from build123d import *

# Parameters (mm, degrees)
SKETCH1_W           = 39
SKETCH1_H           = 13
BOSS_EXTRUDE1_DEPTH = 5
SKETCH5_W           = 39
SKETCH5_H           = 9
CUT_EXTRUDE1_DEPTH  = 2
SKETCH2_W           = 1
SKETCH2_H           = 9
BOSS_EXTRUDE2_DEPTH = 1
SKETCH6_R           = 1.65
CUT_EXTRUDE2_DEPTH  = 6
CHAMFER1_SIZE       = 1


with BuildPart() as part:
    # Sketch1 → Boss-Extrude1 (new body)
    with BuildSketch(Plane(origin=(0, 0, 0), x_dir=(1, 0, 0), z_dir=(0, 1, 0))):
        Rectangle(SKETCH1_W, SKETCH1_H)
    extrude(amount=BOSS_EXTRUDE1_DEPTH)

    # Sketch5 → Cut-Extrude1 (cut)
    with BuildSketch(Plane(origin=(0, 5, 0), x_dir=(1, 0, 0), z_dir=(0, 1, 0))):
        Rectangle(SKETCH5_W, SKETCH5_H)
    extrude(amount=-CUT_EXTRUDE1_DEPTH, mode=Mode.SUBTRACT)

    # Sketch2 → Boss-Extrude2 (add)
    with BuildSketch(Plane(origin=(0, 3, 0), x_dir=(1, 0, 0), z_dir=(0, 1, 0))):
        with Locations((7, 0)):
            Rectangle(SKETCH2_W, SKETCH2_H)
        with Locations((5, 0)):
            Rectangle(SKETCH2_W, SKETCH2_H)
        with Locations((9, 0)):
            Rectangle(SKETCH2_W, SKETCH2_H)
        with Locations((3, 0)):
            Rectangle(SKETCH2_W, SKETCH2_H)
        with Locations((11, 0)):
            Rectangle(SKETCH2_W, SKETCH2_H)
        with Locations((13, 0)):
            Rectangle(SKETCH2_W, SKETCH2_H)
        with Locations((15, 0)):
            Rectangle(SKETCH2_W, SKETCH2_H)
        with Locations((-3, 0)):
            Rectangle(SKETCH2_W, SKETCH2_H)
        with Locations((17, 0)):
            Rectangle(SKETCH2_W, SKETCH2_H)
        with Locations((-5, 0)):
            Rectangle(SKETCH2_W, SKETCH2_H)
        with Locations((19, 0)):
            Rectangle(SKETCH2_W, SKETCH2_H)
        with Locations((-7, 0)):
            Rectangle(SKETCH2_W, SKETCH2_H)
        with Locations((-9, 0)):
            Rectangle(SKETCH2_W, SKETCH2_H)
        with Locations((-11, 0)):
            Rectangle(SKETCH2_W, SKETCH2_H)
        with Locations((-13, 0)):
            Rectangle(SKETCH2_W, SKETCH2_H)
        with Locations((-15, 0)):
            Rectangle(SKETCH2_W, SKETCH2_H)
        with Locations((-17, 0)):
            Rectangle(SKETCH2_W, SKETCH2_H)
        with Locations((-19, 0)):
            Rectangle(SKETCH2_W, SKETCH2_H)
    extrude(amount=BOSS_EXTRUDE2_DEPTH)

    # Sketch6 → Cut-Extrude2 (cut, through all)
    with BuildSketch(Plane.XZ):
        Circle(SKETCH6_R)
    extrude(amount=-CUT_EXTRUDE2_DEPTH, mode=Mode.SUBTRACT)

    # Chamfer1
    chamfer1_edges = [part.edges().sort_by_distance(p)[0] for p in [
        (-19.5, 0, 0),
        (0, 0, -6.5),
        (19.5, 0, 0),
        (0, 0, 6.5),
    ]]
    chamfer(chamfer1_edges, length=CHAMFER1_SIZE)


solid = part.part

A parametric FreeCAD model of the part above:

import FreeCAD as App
import Part
import Sketcher
from FreeCAD import Vector
Q = App.Units.Quantity


def edges_at(feature, points):
    """Names of the edges that pass closest to the given points."""
    edges = feature.Shape.Edges
    near = lambda p: min(range(len(edges)), key=lambda i: edges[i].distToShape(Part.Vertex(*p))[0])
    return sorted({f"Edge{near(p) + 1}" for p in points})

doc = App.newDocument("Part")
params = doc.addObject("Spreadsheet::Sheet", "Params")
for row, (alias, value) in enumerate([
    ("sketch1_width", "39 mm"),
    ("sketch1_height", "13 mm"),
    ("pad1_length", "5 mm"),
    ("sketch2_width", "39 mm"),
    ("sketch2_height", "9 mm"),
    ("pocket1_length", "2 mm"),
    ("sketch3_width", "1 mm"),
    ("sketch3_height", "9 mm"),
    ("pad2_length", "1 mm"),
    ("sketch4_diameter", "3.3 mm"),
    ("chamfer_size", "1 mm"),
], start=1):
    params.set(f"A{row}", alias)
    params.set(f"B{row}", "=" + value)
    params.setAlias(f"B{row}", alias)

body = doc.addObject("PartDesign::Body", "Body")

# Sketch on XZ plane
sketch1 = doc.addObject("Sketcher::SketchObject", "Sketch")
body.addObject(sketch1)
sketch1.AttachmentSupport = (doc.XZ_Plane, [""])
sketch1.MapMode = "FlatFace"
sketch1.addGeometry(Part.LineSegment(Vector(-20, -6, 0), Vector(-20, 6, 0)), False)
sketch1.addGeometry(Part.LineSegment(Vector(-20, 6, 0), Vector(20, 6, 0)), False)
sketch1.addGeometry(Part.LineSegment(Vector(20, 6, 0), Vector(20, -6, 0)), False)
sketch1.addGeometry(Part.LineSegment(Vector(20, -6, 0), Vector(-20, -6, 0)), False)
sketch1.addConstraint(Sketcher.Constraint("Coincident", 0, 2, 1, 1))
sketch1.addConstraint(Sketcher.Constraint("Coincident", 1, 2, 2, 1))
sketch1.addConstraint(Sketcher.Constraint("Coincident", 2, 2, 3, 1))
sketch1.addConstraint(Sketcher.Constraint("Coincident", 3, 2, 0, 1))
sketch1.addConstraint(Sketcher.Constraint("Vertical", 0))
sketch1.addConstraint(Sketcher.Constraint("Horizontal", 1))
sketch1.addConstraint(Sketcher.Constraint("Vertical", 2))
sketch1.addConstraint(Sketcher.Constraint("Horizontal", 3))
sketch1.addConstraint(Sketcher.Constraint("Symmetric", 0, 2, 2, 2, -1, 1))
sketch1.addConstraint(Sketcher.Constraint("DistanceX", 1, 1, 1, 2, Q("39 mm")))
sketch1.addConstraint(Sketcher.Constraint("DistanceY", 0, 1, 0, 2, Q("13 mm")))
sketch1.setExpression("Constraints[9]", "Params.sketch1_width")
sketch1.setExpression("Constraints[10]", "Params.sketch1_height")
pad1 = doc.addObject("PartDesign::Pad", "Pad")
body.addObject(pad1)
pad1.Profile = sketch1
pad1.setExpression("Length", "Params.pad1_length")
pad1.Reversed = True

# Sketch on XZ plane
sketch2 = doc.addObject("Sketcher::SketchObject", "Sketch001")
body.addObject(sketch2)
sketch2.AttachmentSupport = (doc.XZ_Plane, [""])
sketch2.MapMode = "FlatFace"
sketch2.AttachmentOffset = App.Placement(Vector(0, 0, -5), App.Rotation())
sketch2.addGeometry(Part.LineSegment(Vector(-20, -4, 0), Vector(-20, 4, 0)), False)
sketch2.addGeometry(Part.LineSegment(Vector(-20, 4, 0), Vector(20, 4, 0)), False)
sketch2.addGeometry(Part.LineSegment(Vector(20, 4, 0), Vector(20, -4, 0)), False)
sketch2.addGeometry(Part.LineSegment(Vector(20, -4, 0), Vector(-20, -4, 0)), False)
sketch2.addConstraint(Sketcher.Constraint("Coincident", 0, 2, 1, 1))
sketch2.addConstraint(Sketcher.Constraint("Coincident", 1, 2, 2, 1))
sketch2.addConstraint(Sketcher.Constraint("Coincident", 2, 2, 3, 1))
sketch2.addConstraint(Sketcher.Constraint("Coincident", 3, 2, 0, 1))
sketch2.addConstraint(Sketcher.Constraint("Vertical", 0))
sketch2.addConstraint(Sketcher.Constraint("Horizontal", 1))
sketch2.addConstraint(Sketcher.Constraint("Vertical", 2))
sketch2.addConstraint(Sketcher.Constraint("Horizontal", 3))
sketch2.addConstraint(Sketcher.Constraint("Symmetric", 0, 2, 2, 2, -1, 1))
sketch2.addConstraint(Sketcher.Constraint("DistanceX", 1, 1, 1, 2, Q("39 mm")))
sketch2.addConstraint(Sketcher.Constraint("DistanceY", 0, 1, 0, 2, Q("9 mm")))
sketch2.setExpression("Constraints[9]", "Params.sketch2_width")
sketch2.setExpression("Constraints[10]", "Params.sketch2_height")
pocket1 = doc.addObject("PartDesign::Pocket", "Pocket")
body.addObject(pocket1)
pocket1.Profile = sketch2
pocket1.setExpression("Length", "Params.pocket1_length")
pocket1.Reversed = True

# Sketch on XZ plane
sketch3 = doc.addObject("Sketcher::SketchObject", "Sketch002")
body.addObject(sketch3)
sketch3.AttachmentSupport = (doc.XZ_Plane, [""])
sketch3.MapMode = "FlatFace"
sketch3.AttachmentOffset = App.Placement(Vector(0, 0, -3), App.Rotation())
sketch3.addGeometry(Part.LineSegment(Vector(6.5, -4.5, 0), Vector(6.5, 4.5, 0)), False)
sketch3.addGeometry(Part.LineSegment(Vector(6.5, 4.5, 0), Vector(7.5, 4.5, 0)), False)
sketch3.addGeometry(Part.LineSegment(Vector(7.5, 4.5, 0), Vector(7.5, -4.5, 0)), False)
sketch3.addGeometry(Part.LineSegment(Vector(7.5, -4.5, 0), Vector(6.5, -4.5, 0)), False)
sketch3.addGeometry(Part.LineSegment(Vector(4.5, -4.5, 0), Vector(4.5, 4.5, 0)), False)
sketch3.addGeometry(Part.LineSegment(Vector(4.5, 4.5, 0), Vector(5.5, 4.5, 0)), False)
sketch3.addGeometry(Part.LineSegment(Vector(5.5, 4.5, 0), Vector(5.5, -4.5, 0)), False)
sketch3.addGeometry(Part.LineSegment(Vector(5.5, -4.5, 0), Vector(4.5, -4.5, 0)), False)
sketch3.addGeometry(Part.LineSegment(Vector(8.5, -4.5, 0), Vector(8.5, 4.5, 0)), False)
sketch3.addGeometry(Part.LineSegment(Vector(8.5, 4.5, 0), Vector(9.5, 4.5, 0)), False)
sketch3.addGeometry(Part.LineSegment(Vector(9.5, 4.5, 0), Vector(9.5, -4.5, 0)), False)
sketch3.addGeometry(Part.LineSegment(Vector(9.5, -4.5, 0), Vector(8.5, -4.5, 0)), False)
sketch3.addGeometry(Part.LineSegment(Vector(2.5, -4.5, 0), Vector(2.5, 4.5, 0)), False)
sketch3.addGeometry(Part.LineSegment(Vector(2.5, 4.5, 0), Vector(3.5, 4.5, 0)), False)
sketch3.addGeometry(Part.LineSegment(Vector(3.5, 4.5, 0), Vector(3.5, -4.5, 0)), False)
sketch3.addGeometry(Part.LineSegment(Vector(3.5, -4.5, 0), Vector(2.5, -4.5, 0)), False)
sketch3.addGeometry(Part.LineSegment(Vector(10.5, -4.5, 0), Vector(10.5, 4.5, 0)), False)
sketch3.addGeometry(Part.LineSegment(Vector(10.5, 4.5, 0), Vector(11.5, 4.5, 0)), False)
sketch3.addGeometry(Part.LineSegment(Vector(11.5, 4.5, 0), Vector(11.5, -4.5, 0)), False)
sketch3.addGeometry(Part.LineSegment(Vector(11.5, -4.5, 0), Vector(10.5, -4.5, 0)), False)
sketch3.addGeometry(Part.LineSegment(Vector(12.5, -4.5, 0), Vector(12.5, 4.5, 0)), False)
sketch3.addGeometry(Part.LineSegment(Vector(12.5, 4.5, 0), Vector(13.5, 4.5, 0)), False)
sketch3.addGeometry(Part.LineSegment(Vector(13.5, 4.5, 0), Vector(13.5, -4.5, 0)), False)
sketch3.addGeometry(Part.LineSegment(Vector(13.5, -4.5, 0), Vector(12.5, -4.5, 0)), False)
sketch3.addGeometry(Part.LineSegment(Vector(14.5, -4.5, 0), Vector(14.5, 4.5, 0)), False)
sketch3.addGeometry(Part.LineSegment(Vector(14.5, 4.5, 0), Vector(15.5, 4.5, 0)), False)
sketch3.addGeometry(Part.LineSegment(Vector(15.5, 4.5, 0), Vector(15.5, -4.5, 0)), False)
sketch3.addGeometry(Part.LineSegment(Vector(15.5, -4.5, 0), Vector(14.5, -4.5, 0)), False)
sketch3.addGeometry(Part.LineSegment(Vector(-3.5, -4.5, 0), Vector(-3.5, 4.5, 0)), False)
sketch3.addGeometry(Part.LineSegment(Vector(-3.5, 4.5, 0), Vector(-2.5, 4.5, 0)), False)
sketch3.addGeometry(Part.LineSegment(Vector(-2.5, 4.5, 0), Vector(-2.5, -4.5, 0)), False)
sketch3.addGeometry(Part.LineSegment(Vector(-2.5, -4.5, 0), Vector(-3.5, -4.5, 0)), False)
sketch3.addGeometry(Part.LineSegment(Vector(16.5, -4.5, 0), Vector(16.5, 4.5, 0)), False)
sketch3.addGeometry(Part.LineSegment(Vector(16.5, 4.5, 0), Vector(17.5, 4.5, 0)), False)
sketch3.addGeometry(Part.LineSegment(Vector(17.5, 4.5, 0), Vector(17.5, -4.5, 0)), False)
sketch3.addGeometry(Part.LineSegment(Vector(17.5, -4.5, 0), Vector(16.5, -4.5, 0)), False)
sketch3.addGeometry(Part.LineSegment(Vector(-5.5, -4.5, 0), Vector(-5.5, 4.5, 0)), False)
sketch3.addGeometry(Part.LineSegment(Vector(-5.5, 4.5, 0), Vector(-4.5, 4.5, 0)), False)
sketch3.addGeometry(Part.LineSegment(Vector(-4.5, 4.5, 0), Vector(-4.5, -4.5, 0)), False)
sketch3.addGeometry(Part.LineSegment(Vector(-4.5, -4.5, 0), Vector(-5.5, -4.5, 0)), False)
sketch3.addGeometry(Part.LineSegment(Vector(18.5, -4.5, 0), Vector(18.5, 4.5, 0)), False)
sketch3.addGeometry(Part.LineSegment(Vector(18.5, 4.5, 0), Vector(19.5, 4.5, 0)), False)
sketch3.addGeometry(Part.LineSegment(Vector(19.5, 4.5, 0), Vector(19.5, -4.5, 0)), False)
sketch3.addGeometry(Part.LineSegment(Vector(19.5, -4.5, 0), Vector(18.5, -4.5, 0)), False)
sketch3.addGeometry(Part.LineSegment(Vector(-7.5, -4.5, 0), Vector(-7.5, 4.5, 0)), False)
sketch3.addGeometry(Part.LineSegment(Vector(-7.5, 4.5, 0), Vector(-6.5, 4.5, 0)), False)
sketch3.addGeometry(Part.LineSegment(Vector(-6.5, 4.5, 0), Vector(-6.5, -4.5, 0)), False)
sketch3.addGeometry(Part.LineSegment(Vector(-6.5, -4.5, 0), Vector(-7.5, -4.5, 0)), False)
sketch3.addGeometry(Part.LineSegment(Vector(-9.5, -4.5, 0), Vector(-9.5, 4.5, 0)), False)
sketch3.addGeometry(Part.LineSegment(Vector(-9.5, 4.5, 0), Vector(-8.5, 4.5, 0)), False)
sketch3.addGeometry(Part.LineSegment(Vector(-8.5, 4.5, 0), Vector(-8.5, -4.5, 0)), False)
sketch3.addGeometry(Part.LineSegment(Vector(-8.5, -4.5, 0), Vector(-9.5, -4.5, 0)), False)
sketch3.addGeometry(Part.LineSegment(Vector(-11.5, -4.5, 0), Vector(-11.5, 4.5, 0)), False)
sketch3.addGeometry(Part.LineSegment(Vector(-11.5, 4.5, 0), Vector(-10.5, 4.5, 0)), False)
sketch3.addGeometry(Part.LineSegment(Vector(-10.5, 4.5, 0), Vector(-10.5, -4.5, 0)), False)
sketch3.addGeometry(Part.LineSegment(Vector(-10.5, -4.5, 0), Vector(-11.5, -4.5, 0)), False)
sketch3.addGeometry(Part.LineSegment(Vector(-13.5, -4.5, 0), Vector(-13.5, 4.5, 0)), False)
sketch3.addGeometry(Part.LineSegment(Vector(-13.5, 4.5, 0), Vector(-12.5, 4.5, 0)), False)
sketch3.addGeometry(Part.LineSegment(Vector(-12.5, 4.5, 0), Vector(-12.5, -4.5, 0)), False)
sketch3.addGeometry(Part.LineSegment(Vector(-12.5, -4.5, 0), Vector(-13.5, -4.5, 0)), False)
sketch3.addGeometry(Part.LineSegment(Vector(-15.5, -4.5, 0), Vector(-15.5, 4.5, 0)), False)
sketch3.addGeometry(Part.LineSegment(Vector(-15.5, 4.5, 0), Vector(-14.5, 4.5, 0)), False)
sketch3.addGeometry(Part.LineSegment(Vector(-14.5, 4.5, 0), Vector(-14.5, -4.5, 0)), False)
sketch3.addGeometry(Part.LineSegment(Vector(-14.5, -4.5, 0), Vector(-15.5, -4.5, 0)), False)
sketch3.addGeometry(Part.LineSegment(Vector(-17.5, -4.5, 0), Vector(-17.5, 4.5, 0)), False)
sketch3.addGeometry(Part.LineSegment(Vector(-17.5, 4.5, 0), Vector(-16.5, 4.5, 0)), False)
sketch3.addGeometry(Part.LineSegment(Vector(-16.5, 4.5, 0), Vector(-16.5, -4.5, 0)), False)
sketch3.addGeometry(Part.LineSegment(Vector(-16.5, -4.5, 0), Vector(-17.5, -4.5, 0)), False)
sketch3.addGeometry(Part.LineSegment(Vector(-19.5, -4.5, 0), Vector(-19.5, 4.5, 0)), False)
sketch3.addGeometry(Part.LineSegment(Vector(-19.5, 4.5, 0), Vector(-18.5, 4.5, 0)), False)
sketch3.addGeometry(Part.LineSegment(Vector(-18.5, 4.5, 0), Vector(-18.5, -4.5, 0)), False)
sketch3.addGeometry(Part.LineSegment(Vector(-18.5, -4.5, 0), Vector(-19.5, -4.5, 0)), False)
sketch3.addConstraint(Sketcher.Constraint("Coincident", 0, 2, 1, 1))
sketch3.addConstraint(Sketcher.Constraint("Coincident", 1, 2, 2, 1))
sketch3.addConstraint(Sketcher.Constraint("Coincident", 2, 2, 3, 1))
sketch3.addConstraint(Sketcher.Constraint("Coincident", 3, 2, 0, 1))
sketch3.addConstraint(Sketcher.Constraint("Coincident", 4, 2, 5, 1))
sketch3.addConstraint(Sketcher.Constraint("Coincident", 5, 2, 6, 1))
sketch3.addConstraint(Sketcher.Constraint("Coincident", 6, 2, 7, 1))
sketch3.addConstraint(Sketcher.Constraint("Coincident", 7, 2, 4, 1))
sketch3.addConstraint(Sketcher.Constraint("Coincident", 8, 2, 9, 1))
sketch3.addConstraint(Sketcher.Constraint("Coincident", 9, 2, 10, 1))
sketch3.addConstraint(Sketcher.Constraint("Coincident", 10, 2, 11, 1))
sketch3.addConstraint(Sketcher.Constraint("Coincident", 11, 2, 8, 1))
sketch3.addConstraint(Sketcher.Constraint("Coincident", 12, 2, 13, 1))
sketch3.addConstraint(Sketcher.Constraint("Coincident", 13, 2, 14, 1))
sketch3.addConstraint(Sketcher.Constraint("Coincident", 14, 2, 15, 1))
sketch3.addConstraint(Sketcher.Constraint("Coincident", 15, 2, 12, 1))
sketch3.addConstraint(Sketcher.Constraint("Coincident", 16, 2, 17, 1))
sketch3.addConstraint(Sketcher.Constraint("Coincident", 17, 2, 18, 1))
sketch3.addConstraint(Sketcher.Constraint("Coincident", 18, 2, 19, 1))
sketch3.addConstraint(Sketcher.Constraint("Coincident", 19, 2, 16, 1))
sketch3.addConstraint(Sketcher.Constraint("Coincident", 20, 2, 21, 1))
sketch3.addConstraint(Sketcher.Constraint("Coincident", 21, 2, 22, 1))
sketch3.addConstraint(Sketcher.Constraint("Coincident", 22, 2, 23, 1))
sketch3.addConstraint(Sketcher.Constraint("Coincident", 23, 2, 20, 1))
sketch3.addConstraint(Sketcher.Constraint("Coincident", 24, 2, 25, 1))
sketch3.addConstraint(Sketcher.Constraint("Coincident", 25, 2, 26, 1))
sketch3.addConstraint(Sketcher.Constraint("Coincident", 26, 2, 27, 1))
sketch3.addConstraint(Sketcher.Constraint("Coincident", 27, 2, 24, 1))
sketch3.addConstraint(Sketcher.Constraint("Coincident", 28, 2, 29, 1))
sketch3.addConstraint(Sketcher.Constraint("Coincident", 29, 2, 30, 1))
sketch3.addConstraint(Sketcher.Constraint("Coincident", 30, 2, 31, 1))
sketch3.addConstraint(Sketcher.Constraint("Coincident", 31, 2, 28, 1))
sketch3.addConstraint(Sketcher.Constraint("Coincident", 32, 2, 33, 1))
sketch3.addConstraint(Sketcher.Constraint("Coincident", 33, 2, 34, 1))
sketch3.addConstraint(Sketcher.Constraint("Coincident", 34, 2, 35, 1))
sketch3.addConstraint(Sketcher.Constraint("Coincident", 35, 2, 32, 1))
sketch3.addConstraint(Sketcher.Constraint("Coincident", 36, 2, 37, 1))
sketch3.addConstraint(Sketcher.Constraint("Coincident", 37, 2, 38, 1))
sketch3.addConstraint(Sketcher.Constraint("Coincident", 38, 2, 39, 1))
sketch3.addConstraint(Sketcher.Constraint("Coincident", 39, 2, 36, 1))
sketch3.addConstraint(Sketcher.Constraint("Coincident", 40, 2, 41, 1))
sketch3.addConstraint(Sketcher.Constraint("Coincident", 41, 2, 42, 1))
sketch3.addConstraint(Sketcher.Constraint("Coincident", 42, 2, 43, 1))
sketch3.addConstraint(Sketcher.Constraint("Coincident", 43, 2, 40, 1))
sketch3.addConstraint(Sketcher.Constraint("Coincident", 44, 2, 45, 1))
sketch3.addConstraint(Sketcher.Constraint("Coincident", 45, 2, 46, 1))
sketch3.addConstraint(Sketcher.Constraint("Coincident", 46, 2, 47, 1))
sketch3.addConstraint(Sketcher.Constraint("Coincident", 47, 2, 44, 1))
sketch3.addConstraint(Sketcher.Constraint("Coincident", 48, 2, 49, 1))
sketch3.addConstraint(Sketcher.Constraint("Coincident", 49, 2, 50, 1))
sketch3.addConstraint(Sketcher.Constraint("Coincident", 50, 2, 51, 1))
sketch3.addConstraint(Sketcher.Constraint("Coincident", 51, 2, 48, 1))
sketch3.addConstraint(Sketcher.Constraint("Coincident", 52, 2, 53, 1))
sketch3.addConstraint(Sketcher.Constraint("Coincident", 53, 2, 54, 1))
sketch3.addConstraint(Sketcher.Constraint("Coincident", 54, 2, 55, 1))
sketch3.addConstraint(Sketcher.Constraint("Coincident", 55, 2, 52, 1))
sketch3.addConstraint(Sketcher.Constraint("Coincident", 56, 2, 57, 1))
sketch3.addConstraint(Sketcher.Constraint("Coincident", 57, 2, 58, 1))
sketch3.addConstraint(Sketcher.Constraint("Coincident", 58, 2, 59, 1))
sketch3.addConstraint(Sketcher.Constraint("Coincident", 59, 2, 56, 1))
sketch3.addConstraint(Sketcher.Constraint("Coincident", 60, 2, 61, 1))
sketch3.addConstraint(Sketcher.Constraint("Coincident", 61, 2, 62, 1))
sketch3.addConstraint(Sketcher.Constraint("Coincident", 62, 2, 63, 1))
sketch3.addConstraint(Sketcher.Constraint("Coincident", 63, 2, 60, 1))
sketch3.addConstraint(Sketcher.Constraint("Coincident", 64, 2, 65, 1))
sketch3.addConstraint(Sketcher.Constraint("Coincident", 65, 2, 66, 1))
sketch3.addConstraint(Sketcher.Constraint("Coincident", 66, 2, 67, 1))
sketch3.addConstraint(Sketcher.Constraint("Coincident", 67, 2, 64, 1))
sketch3.addConstraint(Sketcher.Constraint("Coincident", 68, 2, 69, 1))
sketch3.addConstraint(Sketcher.Constraint("Coincident", 69, 2, 70, 1))
sketch3.addConstraint(Sketcher.Constraint("Coincident", 70, 2, 71, 1))
sketch3.addConstraint(Sketcher.Constraint("Coincident", 71, 2, 68, 1))
sketch3.addConstraint(Sketcher.Constraint("Vertical", 0))
sketch3.addConstraint(Sketcher.Constraint("Horizontal", 1))
sketch3.addConstraint(Sketcher.Constraint("Vertical", 2))
sketch3.addConstraint(Sketcher.Constraint("Horizontal", 3))
sketch3.addConstraint(Sketcher.Constraint("Vertical", 4))
sketch3.addConstraint(Sketcher.Constraint("Horizontal", 5))
sketch3.addConstraint(Sketcher.Constraint("Vertical", 6))
sketch3.addConstraint(Sketcher.Constraint("Horizontal", 7))
sketch3.addConstraint(Sketcher.Constraint("Vertical", 8))
sketch3.addConstraint(Sketcher.Constraint("Horizontal", 9))
sketch3.addConstraint(Sketcher.Constraint("Vertical", 10))
sketch3.addConstraint(Sketcher.Constraint("Horizontal", 11))
sketch3.addConstraint(Sketcher.Constraint("Vertical", 12))
sketch3.addConstraint(Sketcher.Constraint("Horizontal", 13))
sketch3.addConstraint(Sketcher.Constraint("Vertical", 14))
sketch3.addConstraint(Sketcher.Constraint("Horizontal", 15))
sketch3.addConstraint(Sketcher.Constraint("Vertical", 16))
sketch3.addConstraint(Sketcher.Constraint("Horizontal", 17))
sketch3.addConstraint(Sketcher.Constraint("Vertical", 18))
sketch3.addConstraint(Sketcher.Constraint("Horizontal", 19))
sketch3.addConstraint(Sketcher.Constraint("Vertical", 20))
sketch3.addConstraint(Sketcher.Constraint("Horizontal", 21))
sketch3.addConstraint(Sketcher.Constraint("Vertical", 22))
sketch3.addConstraint(Sketcher.Constraint("Horizontal", 23))
sketch3.addConstraint(Sketcher.Constraint("Vertical", 24))
sketch3.addConstraint(Sketcher.Constraint("Horizontal", 25))
sketch3.addConstraint(Sketcher.Constraint("Vertical", 26))
sketch3.addConstraint(Sketcher.Constraint("Horizontal", 27))
sketch3.addConstraint(Sketcher.Constraint("Vertical", 28))
sketch3.addConstraint(Sketcher.Constraint("Horizontal", 29))
sketch3.addConstraint(Sketcher.Constraint("Vertical", 30))
sketch3.addConstraint(Sketcher.Constraint("Horizontal", 31))
sketch3.addConstraint(Sketcher.Constraint("Vertical", 32))
sketch3.addConstraint(Sketcher.Constraint("Horizontal", 33))
sketch3.addConstraint(Sketcher.Constraint("Vertical", 34))
sketch3.addConstraint(Sketcher.Constraint("Horizontal", 35))
sketch3.addConstraint(Sketcher.Constraint("Vertical", 36))
sketch3.addConstraint(Sketcher.Constraint("Horizontal", 37))
sketch3.addConstraint(Sketcher.Constraint("Vertical", 38))
sketch3.addConstraint(Sketcher.Constraint("Horizontal", 39))
sketch3.addConstraint(Sketcher.Constraint("Vertical", 40))
sketch3.addConstraint(Sketcher.Constraint("Horizontal", 41))
sketch3.addConstraint(Sketcher.Constraint("Vertical", 42))
sketch3.addConstraint(Sketcher.Constraint("Horizontal", 43))
sketch3.addConstraint(Sketcher.Constraint("Vertical", 44))
sketch3.addConstraint(Sketcher.Constraint("Horizontal", 45))
sketch3.addConstraint(Sketcher.Constraint("Vertical", 46))
sketch3.addConstraint(Sketcher.Constraint("Horizontal", 47))
sketch3.addConstraint(Sketcher.Constraint("Vertical", 48))
sketch3.addConstraint(Sketcher.Constraint("Horizontal", 49))
sketch3.addConstraint(Sketcher.Constraint("Vertical", 50))
sketch3.addConstraint(Sketcher.Constraint("Horizontal", 51))
sketch3.addConstraint(Sketcher.Constraint("Vertical", 52))
sketch3.addConstraint(Sketcher.Constraint("Horizontal", 53))
sketch3.addConstraint(Sketcher.Constraint("Vertical", 54))
sketch3.addConstraint(Sketcher.Constraint("Horizontal", 55))
sketch3.addConstraint(Sketcher.Constraint("Vertical", 56))
sketch3.addConstraint(Sketcher.Constraint("Horizontal", 57))
sketch3.addConstraint(Sketcher.Constraint("Vertical", 58))
sketch3.addConstraint(Sketcher.Constraint("Horizontal", 59))
sketch3.addConstraint(Sketcher.Constraint("Vertical", 60))
sketch3.addConstraint(Sketcher.Constraint("Horizontal", 61))
sketch3.addConstraint(Sketcher.Constraint("Vertical", 62))
sketch3.addConstraint(Sketcher.Constraint("Horizontal", 63))
sketch3.addConstraint(Sketcher.Constraint("Vertical", 64))
sketch3.addConstraint(Sketcher.Constraint("Horizontal", 65))
sketch3.addConstraint(Sketcher.Constraint("Vertical", 66))
sketch3.addConstraint(Sketcher.Constraint("Horizontal", 67))
sketch3.addConstraint(Sketcher.Constraint("Vertical", 68))
sketch3.addConstraint(Sketcher.Constraint("Horizontal", 69))
sketch3.addConstraint(Sketcher.Constraint("Vertical", 70))
sketch3.addConstraint(Sketcher.Constraint("Horizontal", 71))
sketch3.addConstraint(Sketcher.Constraint("Symmetric", 14, 2, 28, 2, -1, 1))
sketch3.addConstraint(Sketcher.Constraint("Symmetric", 12, 2, 30, 2, -1, 1))
sketch3.addConstraint(Sketcher.Constraint("Symmetric", 6, 2, 36, 2, -1, 1))
sketch3.addConstraint(Sketcher.Constraint("Symmetric", 4, 2, 38, 2, -1, 1))
sketch3.addConstraint(Sketcher.Constraint("Symmetric", 2, 2, 44, 2, -1, 1))
sketch3.addConstraint(Sketcher.Constraint("Symmetric", 0, 2, 46, 2, -1, 1))
sketch3.addConstraint(Sketcher.Constraint("Symmetric", 10, 2, 48, 2, -1, 1))
sketch3.addConstraint(Sketcher.Constraint("Symmetric", 8, 2, 50, 2, -1, 1))
sketch3.addConstraint(Sketcher.Constraint("Symmetric", 18, 2, 52, 2, -1, 1))
sketch3.addConstraint(Sketcher.Constraint("Symmetric", 16, 2, 54, 2, -1, 1))
sketch3.addConstraint(Sketcher.Constraint("Symmetric", 22, 2, 56, 2, -1, 1))
sketch3.addConstraint(Sketcher.Constraint("Symmetric", 20, 2, 58, 2, -1, 1))
sketch3.addConstraint(Sketcher.Constraint("Symmetric", 26, 2, 60, 2, -1, 1))
sketch3.addConstraint(Sketcher.Constraint("Symmetric", 24, 2, 62, 2, -1, 1))
sketch3.addConstraint(Sketcher.Constraint("Symmetric", 34, 2, 64, 2, -1, 1))
sketch3.addConstraint(Sketcher.Constraint("Symmetric", 32, 2, 66, 2, -1, 1))
sketch3.addConstraint(Sketcher.Constraint("Symmetric", 42, 2, 68, 2, -1, 1))
sketch3.addConstraint(Sketcher.Constraint("Symmetric", 40, 2, 70, 2, -1, 1))
sketch3.addConstraint(Sketcher.Constraint("Horizontal", 1, 2, 4, 2))
sketch3.addConstraint(Sketcher.Constraint("Horizontal", 3, 2, 6, 2))
sketch3.addConstraint(Sketcher.Constraint("Horizontal", 5, 2, 8, 2))
sketch3.addConstraint(Sketcher.Constraint("Horizontal", 7, 2, 10, 2))
sketch3.addConstraint(Sketcher.Constraint("Horizontal", 9, 2, 12, 2))
sketch3.addConstraint(Sketcher.Constraint("Horizontal", 11, 2, 14, 2))
sketch3.addConstraint(Sketcher.Constraint("Horizontal", 13, 2, 16, 2))
sketch3.addConstraint(Sketcher.Constraint("Horizontal", 15, 2, 18, 2))
sketch3.addConstraint(Sketcher.Constraint("Horizontal", 17, 2, 20, 2))
sketch3.addConstraint(Sketcher.Constraint("Horizontal", 19, 2, 22, 2))
sketch3.addConstraint(Sketcher.Constraint("Horizontal", 21, 2, 24, 2))
sketch3.addConstraint(Sketcher.Constraint("Horizontal", 23, 2, 26, 2))
sketch3.addConstraint(Sketcher.Constraint("Horizontal", 25, 2, 28, 2))
sketch3.addConstraint(Sketcher.Constraint("Horizontal", 29, 2, 32, 2))
sketch3.addConstraint(Sketcher.Constraint("Horizontal", 31, 2, 34, 2))
sketch3.addConstraint(Sketcher.Constraint("Horizontal", 37, 2, 40, 2))
sketch3.addConstraint(Sketcher.Constraint("Horizontal", 39, 2, 42, 2))
sketch3.addConstraint(Sketcher.Constraint("Equal", 3, 5))
sketch3.addConstraint(Sketcher.Constraint("Equal", 7, 9))
sketch3.addConstraint(Sketcher.Constraint("Equal", 11, 13))
sketch3.addConstraint(Sketcher.Constraint("Equal", 15, 17))
sketch3.addConstraint(Sketcher.Constraint("Equal", 19, 21))
sketch3.addConstraint(Sketcher.Constraint("Equal", 23, 25))
sketch3.addConstraint(Sketcher.Constraint("Equal", 31, 33))
sketch3.addConstraint(Sketcher.Constraint("Equal", 39, 41))
sketch3.addConstraint(Sketcher.Constraint("DistanceX", 1, 1, 1, 2, Q("1 mm")))
sketch3.addConstraint(Sketcher.Constraint("DistanceY", 0, 1, 0, 2, Q("9 mm")))
sketch3.addConstraint(Sketcher.Constraint("DistanceX", -1, 1, 0, 2, Q("6.5 mm")))
sketch3.addConstraint(Sketcher.Constraint("DistanceX", -1, 1, 4, 2, Q("4.5 mm")))
sketch3.addConstraint(Sketcher.Constraint("DistanceX", -1, 1, 8, 2, Q("8.5 mm")))
sketch3.addConstraint(Sketcher.Constraint("DistanceX", -1, 1, 12, 2, Q("2.5 mm")))
sketch3.addConstraint(Sketcher.Constraint("DistanceX", -1, 1, 16, 2, Q("10.5 mm")))
sketch3.addConstraint(Sketcher.Constraint("DistanceX", -1, 1, 20, 2, Q("12.5 mm")))
sketch3.addConstraint(Sketcher.Constraint("DistanceX", -1, 1, 24, 2, Q("14.5 mm")))
sketch3.addConstraint(Sketcher.Constraint("DistanceX", -1, 1, 32, 2, Q("16.5 mm")))
sketch3.addConstraint(Sketcher.Constraint("DistanceX", -1, 1, 40, 2, Q("18.5 mm")))
sketch3.setExpression("Constraints[187]", "Params.sketch3_width")
sketch3.setExpression("Constraints[188]", "Params.sketch3_height")
pad2 = doc.addObject("PartDesign::Pad", "Pad001")
body.addObject(pad2)
pad2.Profile = sketch3
pad2.setExpression("Length", "Params.pad2_length")
pad2.Reversed = True

# Sketch on XZ plane
sketch4 = doc.addObject("Sketcher::SketchObject", "Sketch003")
body.addObject(sketch4)
sketch4.AttachmentSupport = (doc.XZ_Plane, [""])
sketch4.MapMode = "FlatFace"
sketch4.addGeometry(Part.Circle(Vector(0, 0, 0), Vector(0, 0, 1), 1.6), False)
sketch4.addConstraint(Sketcher.Constraint("Coincident", 0, 3, -1, 1))
sketch4.addConstraint(Sketcher.Constraint("Diameter", 0, Q("3.3 mm")))
sketch4.setExpression("Constraints[1]", "Params.sketch4_diameter")
pocket2 = doc.addObject("PartDesign::Pocket", "Pocket001")
body.addObject(pocket2)
pocket2.Profile = sketch4
pocket2.Type = "ThroughAll"
doc.recompute()

chamfer = doc.addObject("PartDesign::Chamfer", "Chamfer")
body.addObject(chamfer)
chamfer.Base = (pocket2, edges_at(pocket2, [
    (-19.5, 0, 0),
    (0, 0, -6.5),
    (19.5, 0, 0),
    (0, 0, 6.5),
]))
chamfer.setExpression("Size", "Params.chamfer_size")

doc.recompute()
